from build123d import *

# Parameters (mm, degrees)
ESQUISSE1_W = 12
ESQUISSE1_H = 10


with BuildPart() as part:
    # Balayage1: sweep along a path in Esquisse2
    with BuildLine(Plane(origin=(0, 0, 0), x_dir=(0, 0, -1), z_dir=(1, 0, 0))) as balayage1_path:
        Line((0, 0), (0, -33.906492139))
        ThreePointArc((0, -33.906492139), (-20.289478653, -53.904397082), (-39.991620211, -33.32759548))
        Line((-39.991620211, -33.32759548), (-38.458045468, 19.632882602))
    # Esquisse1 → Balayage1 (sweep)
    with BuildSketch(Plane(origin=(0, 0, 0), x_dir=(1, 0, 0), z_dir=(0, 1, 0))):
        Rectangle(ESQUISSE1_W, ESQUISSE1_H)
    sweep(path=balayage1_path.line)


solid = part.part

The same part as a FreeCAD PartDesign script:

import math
import FreeCAD as App
import Part
import Sketcher

V = App.Vector


def add_polygon(sketch, points):
    """Adds a closed chain of lines whose ends are joined by coincident constraints."""
    first, n = sketch.GeometryCount, len(points)
    for a, b in zip(points, points[1:] + points[:1]):
        sketch.addGeometry(Part.LineSegment(App.Vector(*a, 0), App.Vector(*b, 0)), False)
    for i in range(n):
        sketch.addConstraint(Sketcher.Constraint("Coincident", first + i, 2, first + (i + 1) % n, 1))

doc = App.newDocument("Part")
body = doc.addObject("PartDesign::Body", "Body")

sketch1 = doc.addObject("Sketcher::SketchObject", "Sketch")
body.addObject(sketch1)
sketch1.AttachmentSupport = (doc.XZ_Plane, [""])
sketch1.MapMode = "FlatFace"
add_polygon(sketch1, [(-6, -5), (-6, 5), (6, 5), (6, -5)])
sketch1.addConstraint([
    Sketcher.Constraint("Vertical", 0),
    Sketcher.Constraint("Horizontal", 1),
    Sketcher.Constraint("Vertical", 2),
    Sketcher.Constraint("Horizontal", 3),
    Sketcher.Constraint("Symmetric", 0, 2, 2, 2, -1, 1),
    Sketcher.Constraint("DistanceX", 1, 1, 1, 2, 12.0),
    Sketcher.Constraint("DistanceY", 0, 1, 0, 2, 10.0),
])

sketch2 = doc.addObject("Sketcher::SketchObject", "Sketch001")
body.addObject(sketch2)
sketch2.AttachmentSupport = (doc.YZ_Plane, [""])
sketch2.MapMode = "FlatFace"
sketch2.addGeometry([
    Part.LineSegment(V(0, 0, 0), V(-33.906492, 0, 0)),
    Part.ArcOfCircle(Part.Circle(V(-33.906492, 20, 0), V(0, 0, 1), 20), math.radians(88.341352), math.radians(270)),
    Part.LineSegment(V(-33.327595, 39.99162, 0), V(19.632883, 38.458045, 0)),
], False)
sketch2.addConstraint([
    Sketcher.Constraint("Tangent", 0, 2, 1, 2),
    Sketcher.Constraint("Tangent", 1, 1, 2, 1),
    Sketcher.Constraint("Horizontal", 0),
    Sketcher.Constraint("Coincident", 0, 1, -1, 1),
    Sketcher.Constraint("Radius", 1, 20.0),
    Sketcher.Constraint("DistanceX", 0, 2, 0, 1, 33.906492),
    Sketcher.Constraint("DistanceY", -1, 1, 1, 1, 39.99162),
    Sketcher.Constraint("DistanceX", 1, 1, 2, 2, 52.960478),
])
doc.recompute()

additivepipe = doc.addObject("PartDesign::AdditivePipe", "AdditivePipe")
body.addObject(additivepipe)
additivepipe.Profile = sketch1
additivepipe.Spine = (sketch2, ["Edge1", "Edge2", "Edge3"])

doc.recompute()
